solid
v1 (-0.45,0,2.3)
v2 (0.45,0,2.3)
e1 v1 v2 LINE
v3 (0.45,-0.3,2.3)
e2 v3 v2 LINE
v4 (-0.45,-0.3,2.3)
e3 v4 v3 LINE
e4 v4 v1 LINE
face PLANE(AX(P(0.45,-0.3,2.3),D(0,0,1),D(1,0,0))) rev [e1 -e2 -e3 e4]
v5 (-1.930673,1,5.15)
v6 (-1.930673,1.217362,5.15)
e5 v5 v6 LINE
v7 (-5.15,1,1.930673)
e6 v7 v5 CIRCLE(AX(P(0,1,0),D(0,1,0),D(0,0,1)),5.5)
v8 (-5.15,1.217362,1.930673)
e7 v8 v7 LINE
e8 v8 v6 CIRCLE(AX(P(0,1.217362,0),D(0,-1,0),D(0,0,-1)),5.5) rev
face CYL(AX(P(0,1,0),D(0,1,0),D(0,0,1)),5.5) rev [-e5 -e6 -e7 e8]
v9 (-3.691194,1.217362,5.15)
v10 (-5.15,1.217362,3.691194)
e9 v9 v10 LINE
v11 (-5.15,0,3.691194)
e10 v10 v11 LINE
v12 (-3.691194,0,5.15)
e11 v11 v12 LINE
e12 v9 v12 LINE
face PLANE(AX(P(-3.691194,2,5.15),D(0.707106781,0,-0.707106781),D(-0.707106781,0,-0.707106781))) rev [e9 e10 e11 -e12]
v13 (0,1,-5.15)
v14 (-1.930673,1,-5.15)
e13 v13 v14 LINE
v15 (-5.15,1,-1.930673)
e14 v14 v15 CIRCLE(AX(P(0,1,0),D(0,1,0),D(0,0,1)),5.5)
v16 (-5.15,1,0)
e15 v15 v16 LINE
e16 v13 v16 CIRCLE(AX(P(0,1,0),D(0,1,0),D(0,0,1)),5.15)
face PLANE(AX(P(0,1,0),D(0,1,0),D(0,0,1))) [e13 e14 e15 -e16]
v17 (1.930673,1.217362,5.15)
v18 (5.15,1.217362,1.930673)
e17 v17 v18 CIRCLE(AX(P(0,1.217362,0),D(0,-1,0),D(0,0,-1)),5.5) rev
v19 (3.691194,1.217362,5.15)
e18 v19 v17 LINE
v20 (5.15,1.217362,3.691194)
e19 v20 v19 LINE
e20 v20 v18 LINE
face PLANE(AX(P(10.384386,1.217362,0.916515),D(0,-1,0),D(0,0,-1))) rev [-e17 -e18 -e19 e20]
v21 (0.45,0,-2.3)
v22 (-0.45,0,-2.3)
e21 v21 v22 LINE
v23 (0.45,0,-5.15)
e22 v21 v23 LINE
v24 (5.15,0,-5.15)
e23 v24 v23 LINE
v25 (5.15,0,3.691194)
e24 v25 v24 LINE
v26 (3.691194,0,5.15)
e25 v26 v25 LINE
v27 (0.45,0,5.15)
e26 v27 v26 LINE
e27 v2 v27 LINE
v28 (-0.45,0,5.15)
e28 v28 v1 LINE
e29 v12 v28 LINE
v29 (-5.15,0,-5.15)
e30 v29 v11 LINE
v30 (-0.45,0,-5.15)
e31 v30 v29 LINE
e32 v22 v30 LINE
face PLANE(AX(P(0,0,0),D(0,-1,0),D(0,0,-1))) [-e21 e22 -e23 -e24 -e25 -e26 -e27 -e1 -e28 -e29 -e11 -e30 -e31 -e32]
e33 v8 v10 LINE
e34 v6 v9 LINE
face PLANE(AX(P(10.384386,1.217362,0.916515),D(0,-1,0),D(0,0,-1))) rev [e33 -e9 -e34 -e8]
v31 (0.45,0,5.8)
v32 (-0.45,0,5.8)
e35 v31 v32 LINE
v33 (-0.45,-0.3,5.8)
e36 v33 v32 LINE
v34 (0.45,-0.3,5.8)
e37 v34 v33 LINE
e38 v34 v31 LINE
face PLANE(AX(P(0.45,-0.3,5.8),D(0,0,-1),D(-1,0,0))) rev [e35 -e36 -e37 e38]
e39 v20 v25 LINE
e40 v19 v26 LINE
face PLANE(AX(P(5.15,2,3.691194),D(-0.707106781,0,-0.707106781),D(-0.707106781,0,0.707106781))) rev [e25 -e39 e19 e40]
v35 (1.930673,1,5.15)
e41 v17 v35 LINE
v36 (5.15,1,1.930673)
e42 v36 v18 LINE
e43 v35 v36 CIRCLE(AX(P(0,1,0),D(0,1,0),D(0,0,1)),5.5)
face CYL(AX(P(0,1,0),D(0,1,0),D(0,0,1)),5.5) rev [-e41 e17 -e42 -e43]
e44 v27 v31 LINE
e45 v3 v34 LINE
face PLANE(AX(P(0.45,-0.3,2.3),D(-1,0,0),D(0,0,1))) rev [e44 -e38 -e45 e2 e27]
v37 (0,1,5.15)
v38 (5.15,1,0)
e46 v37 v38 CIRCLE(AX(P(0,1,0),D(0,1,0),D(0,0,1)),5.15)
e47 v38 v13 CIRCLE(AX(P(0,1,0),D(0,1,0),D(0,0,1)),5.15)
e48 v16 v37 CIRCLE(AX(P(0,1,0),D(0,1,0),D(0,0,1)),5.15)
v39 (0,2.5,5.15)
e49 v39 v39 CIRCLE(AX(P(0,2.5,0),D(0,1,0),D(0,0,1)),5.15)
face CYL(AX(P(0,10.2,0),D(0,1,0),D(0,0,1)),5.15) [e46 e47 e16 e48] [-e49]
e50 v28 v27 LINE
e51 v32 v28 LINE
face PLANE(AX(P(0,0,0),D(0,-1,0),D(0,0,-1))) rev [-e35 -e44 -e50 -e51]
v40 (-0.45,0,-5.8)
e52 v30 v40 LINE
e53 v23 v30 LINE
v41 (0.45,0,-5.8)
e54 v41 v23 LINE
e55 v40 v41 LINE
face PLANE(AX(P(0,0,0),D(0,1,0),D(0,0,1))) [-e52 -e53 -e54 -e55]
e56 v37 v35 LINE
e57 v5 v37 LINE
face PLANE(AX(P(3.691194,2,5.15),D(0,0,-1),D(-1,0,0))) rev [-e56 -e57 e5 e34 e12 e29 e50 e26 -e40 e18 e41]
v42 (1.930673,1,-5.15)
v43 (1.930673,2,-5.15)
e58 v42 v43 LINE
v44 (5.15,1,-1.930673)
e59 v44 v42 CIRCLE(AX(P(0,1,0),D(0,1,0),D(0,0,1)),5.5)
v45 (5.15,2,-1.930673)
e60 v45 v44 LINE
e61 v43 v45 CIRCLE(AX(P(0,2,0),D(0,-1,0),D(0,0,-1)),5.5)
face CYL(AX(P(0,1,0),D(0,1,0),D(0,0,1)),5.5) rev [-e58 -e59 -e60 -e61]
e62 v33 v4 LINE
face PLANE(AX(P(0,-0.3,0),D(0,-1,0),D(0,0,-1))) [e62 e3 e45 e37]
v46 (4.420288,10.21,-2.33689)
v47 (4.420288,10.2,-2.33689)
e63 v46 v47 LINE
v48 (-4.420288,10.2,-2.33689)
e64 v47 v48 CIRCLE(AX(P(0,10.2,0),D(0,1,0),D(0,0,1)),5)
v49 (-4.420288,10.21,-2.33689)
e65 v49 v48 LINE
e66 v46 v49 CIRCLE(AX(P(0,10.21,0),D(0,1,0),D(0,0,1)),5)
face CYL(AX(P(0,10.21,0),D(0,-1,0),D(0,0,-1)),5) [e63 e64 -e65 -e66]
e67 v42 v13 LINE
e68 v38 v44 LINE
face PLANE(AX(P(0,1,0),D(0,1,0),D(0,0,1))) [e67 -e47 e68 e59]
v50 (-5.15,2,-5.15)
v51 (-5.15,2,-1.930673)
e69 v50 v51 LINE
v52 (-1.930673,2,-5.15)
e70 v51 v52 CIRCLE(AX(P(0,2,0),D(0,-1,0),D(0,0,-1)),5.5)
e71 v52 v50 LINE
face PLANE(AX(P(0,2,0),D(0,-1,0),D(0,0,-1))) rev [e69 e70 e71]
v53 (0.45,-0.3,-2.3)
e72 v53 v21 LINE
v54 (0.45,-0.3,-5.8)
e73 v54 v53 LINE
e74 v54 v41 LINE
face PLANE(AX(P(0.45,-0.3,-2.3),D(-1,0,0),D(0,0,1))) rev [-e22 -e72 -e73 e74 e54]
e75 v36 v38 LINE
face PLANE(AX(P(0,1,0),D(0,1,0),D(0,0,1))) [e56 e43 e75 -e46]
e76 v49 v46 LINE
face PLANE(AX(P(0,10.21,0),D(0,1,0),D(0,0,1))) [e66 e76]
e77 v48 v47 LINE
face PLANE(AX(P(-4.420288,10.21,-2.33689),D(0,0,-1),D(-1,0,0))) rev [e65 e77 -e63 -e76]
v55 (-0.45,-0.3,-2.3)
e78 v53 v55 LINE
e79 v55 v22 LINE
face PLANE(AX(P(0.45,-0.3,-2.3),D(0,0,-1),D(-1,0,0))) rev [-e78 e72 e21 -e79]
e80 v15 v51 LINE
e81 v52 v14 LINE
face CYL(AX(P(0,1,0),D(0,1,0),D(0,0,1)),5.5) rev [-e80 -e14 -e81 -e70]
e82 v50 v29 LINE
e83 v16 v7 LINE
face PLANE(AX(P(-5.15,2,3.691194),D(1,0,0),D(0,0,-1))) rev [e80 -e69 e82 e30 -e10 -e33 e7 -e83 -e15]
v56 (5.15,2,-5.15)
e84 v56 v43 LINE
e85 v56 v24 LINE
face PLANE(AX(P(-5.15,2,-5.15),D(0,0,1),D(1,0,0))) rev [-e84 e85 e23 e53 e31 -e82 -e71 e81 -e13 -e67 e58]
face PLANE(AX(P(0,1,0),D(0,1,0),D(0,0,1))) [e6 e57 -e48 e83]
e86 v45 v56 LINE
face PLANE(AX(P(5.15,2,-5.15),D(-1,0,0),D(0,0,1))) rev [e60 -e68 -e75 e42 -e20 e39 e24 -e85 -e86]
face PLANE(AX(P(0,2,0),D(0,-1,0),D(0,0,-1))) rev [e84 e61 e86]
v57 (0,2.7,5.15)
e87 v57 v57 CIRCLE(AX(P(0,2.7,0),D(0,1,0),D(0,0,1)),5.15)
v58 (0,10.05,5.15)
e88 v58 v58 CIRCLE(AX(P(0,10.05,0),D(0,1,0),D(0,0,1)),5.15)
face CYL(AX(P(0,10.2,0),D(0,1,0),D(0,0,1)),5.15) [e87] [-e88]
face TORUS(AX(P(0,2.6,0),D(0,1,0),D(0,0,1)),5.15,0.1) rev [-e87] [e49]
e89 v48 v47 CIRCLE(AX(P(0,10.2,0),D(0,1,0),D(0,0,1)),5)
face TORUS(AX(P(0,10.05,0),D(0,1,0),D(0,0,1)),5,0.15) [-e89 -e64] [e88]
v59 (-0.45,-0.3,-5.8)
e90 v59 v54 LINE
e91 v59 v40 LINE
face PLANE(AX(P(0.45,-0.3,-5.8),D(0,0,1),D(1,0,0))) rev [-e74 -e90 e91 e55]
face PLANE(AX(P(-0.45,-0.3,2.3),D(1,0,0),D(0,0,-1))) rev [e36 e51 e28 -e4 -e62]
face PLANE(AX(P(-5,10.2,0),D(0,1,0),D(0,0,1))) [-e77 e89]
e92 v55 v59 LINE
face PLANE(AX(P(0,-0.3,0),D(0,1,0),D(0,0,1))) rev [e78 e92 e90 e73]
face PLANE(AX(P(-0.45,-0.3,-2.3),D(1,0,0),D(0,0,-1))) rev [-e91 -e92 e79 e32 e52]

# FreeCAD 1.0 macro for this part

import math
import FreeCAD as App
import Part
import Sketcher

doc = App.newDocument("Part")
body = doc.addObject("PartDesign::Body", "Body")

sketch1 = doc.addObject("Sketcher::SketchObject", "Sketch")
body.addObject(sketch1)
sketch1.AttachmentSupport = (doc.XZ_Plane, [""])
sketch1.MapMode = "FlatFace"
sketch1.addGeometry([
    Part.LineSegment(App.Vector(5.2, -5.2, 0), App.Vector(-5.2, -5.2, 0)),
    Part.LineSegment(App.Vector(-5.2, -5.2, 0), App.Vector(-5.2, 3.7, 0)),
    Part.LineSegment(App.Vector(-5.2, 3.7, 0), App.Vector(-3.7, 5.2, 0)),
    Part.LineSegment(App.Vector(-3.7, 5.2, 0), App.Vector(3.7, 5.2, 0)),
    Part.LineSegment(App.Vector(3.7, 5.2, 0), App.Vector(5.2, 3.7, 0)),
    Part.LineSegment(App.Vector(5.2, 3.7, 0), App.Vector(5.2, -5.2, 0)),
], False)
sketch1.addConstraint([
    Sketcher.Constraint("Coincident", 0, 2, 1, 1),
    Sketcher.Constraint("Coincident", 1, 2, 2, 1),
    Sketcher.Constraint("Coincident", 2, 2, 3, 1),
    Sketcher.Constraint("Coincident", 3, 2, 4, 1),
    Sketcher.Constraint("Coincident", 4, 2, 5, 1),
    Sketcher.Constraint("Coincident", 5, 2, 0, 1),
    Sketcher.Constraint("Horizontal", 0),
    Sketcher.Constraint("Vertical", 1),
    Sketcher.Constraint("Horizontal", 3),
    Sketcher.Constraint("Vertical", 5),
    Sketcher.Constraint("Symmetric", 1, 2, 4, 2, -2),
    Sketcher.Constraint("Perpendicular", 2, 4),
    Sketcher.Constraint("Equal", 2, 4),
    Sketcher.Constraint("DistanceX", 0, 2, 0, 1, 10.3),
    Sketcher.Constraint("DistanceY", 0, 2, 2, 2, 10.3),
    Sketcher.Constraint("DistanceY", 0, 2, -1, 1, 5.15),
    Sketcher.Constraint("DistanceX", 3, 1, 3, 2, 7.382387),
])
pad1 = doc.addObject("PartDesign::Pad", "Pad")
body.addObject(pad1)
pad1.Profile = sketch1
pad1.Length = 2
pad1.Reversed = True

sketch2 = doc.addObject("Sketcher::SketchObject", "Sketch001")
body.addObject(sketch2)
sketch2.AttachmentSupport = (doc.XZ_Plane, [""])
sketch2.MapMode = "FlatFace"
sketch2.AttachmentOffset = App.Placement(App.Vector(0, 0, -2), App.Rotation())
sketch2.addGeometry(Part.Circle(App.Vector(0, 0, 0), App.Vector(0, 0, 1), 6), False)
sketch2.addConstraint([
    Sketcher.Constraint("Coincident", 0, 3, -1, 1),
    Sketcher.Constraint("Diameter", 0, 11.0),
])
pocket1 = doc.addObject("PartDesign::Pocket", "Pocket")
body.addObject(pocket1)
pocket1.Profile = sketch2
pocket1.Length = 1
pocket1.Reversed = True

sketch3 = doc.addObject("Sketcher::SketchObject", "Sketch002")
body.addObject(sketch3)
sketch3.AttachmentSupport = (doc.YZ_Plane, [""])
sketch3.MapMode = "FlatFace"
sketch3.AttachmentOffset = App.Placement(App.Vector(0, 0, 5.15), App.Rotation())
sketch3.addGeometry([
    Part.LineSegment(App.Vector(2.8, 0.9, 0), App.Vector(1.2, 0.9, 0)),
    Part.LineSegment(App.Vector(1.2, 0.9, 0), App.Vector(1.2, 5.9, 0)),
    Part.LineSegment(App.Vector(1.2, 5.9, 0), App.Vector(2.8, 5.9, 0)),
    Part.LineSegment(App.Vector(2.8, 5.9, 0), App.Vector(2.8, 0.9, 0)),
], False)
sketch3.addConstraint([
    Sketcher.Constraint("Coincident", 0, 2, 1, 1),
    Sketcher.Constraint("Coincident", 1, 2, 2, 1),
    Sketcher.Constraint("Coincident", 2, 2, 3, 1),
    Sketcher.Constraint("Coincident", 3, 2, 0, 1),
    Sketcher.Constraint("Horizontal", 0),
    Sketcher.Constraint("Vertical", 1),
    Sketcher.Constraint("Horizontal", 2),
    Sketcher.Constraint("Vertical", 3),
    Sketcher.Constraint("DistanceY", 1, 1, 1, 2, 4.983499),
    Sketcher.Constraint("DistanceX", 0, 2, 0, 1, 1.601105),
    Sketcher.Constraint("DistanceX", -1, 1, 0, 2, 1.217362),
    Sketcher.Constraint("DistanceY", -1, 1, 0, 2, 0.916515),
])
pocket2 = doc.addObject("PartDesign::Pocket", "Pocket001")
body.addObject(pocket2)
pocket2.Profile = sketch3
pocket2.Length = 10.3

sketch4 = doc.addObject("Sketcher::SketchObject", "Sketch003")
body.addObject(sketch4)
sketch4.AttachmentSupport = (doc.XY_Plane, [""])
sketch4.MapMode = "FlatFace"
sketch4.addGeometry([
    Part.LineSegment(App.Vector(-5.15, 1, 0), App.Vector(0, 1, 0)),
    Part.LineSegment(App.Vector(0, 1, 0), App.Vector(0, 10.2, 0)),
    Part.LineSegment(App.Vector(0, 10.2, 0), App.Vector(-5, 10.2, 0)),
    Part.ArcOfCircle(Part.Circle(App.Vector(-5, 10.05, 0), App.Vector(0, 0, 1), 0.15), math.radians(90), math.radians(180)),
    Part.LineSegment(App.Vector(-5.15, 10.05, 0), App.Vector(-5.15, 2.7, 0)),
    Part.ArcOfCircle(Part.Circle(App.Vector(-5.15, 2.6, 0), App.Vector(0, 0, 1), 0.1), math.radians(-90), math.radians(90)),
    Part.LineSegment(App.Vector(-5.15, 2.5, 0), App.Vector(-5.15, 1, 0)),
], False)
sketch4.addConstraint([
    Sketcher.Constraint("Coincident", 0, 2, 1, 1),
    Sketcher.Constraint("Coincident", 1, 2, 2, 1),
    Sketcher.Constraint("Tangent", 2, 2, 3, 1),
    Sketcher.Constraint("Tangent", 3, 2, 4, 1),
    Sketcher.Constraint("Coincident", 4, 2, 5, 2),
    Sketcher.Constraint("Coincident", 5, 1, 6, 1),
    Sketcher.Constraint("Coincident", 6, 2, 0, 1),
    Sketcher.Constraint("Horizontal", 0),
    Sketcher.Constraint("Vertical", 1),
    Sketcher.Constraint("Horizontal", 2),
    Sketcher.Constraint("Vertical", 4),
    Sketcher.Constraint("Vertical", 6),
    Sketcher.Constraint("PointOnObject", 0, 2, -2),
    Sketcher.Constraint("Vertical", 5, 3, 3, 2),
    Sketcher.Constraint("Vertical", 4, 2, 5, 1),
    Sketcher.Constraint("Radius", 5, 0.1),
    Sketcher.Constraint("DistanceX", 2, 2, 2, 1, 5.0),
    Sketcher.Constraint("Radius", 3, 0.15),
    Sketcher.Constraint("DistanceY", 1, 1, 1, 2, 9.2),
    Sketcher.Constraint("DistanceY", 6, 2, 6, 1, 1.5),
    Sketcher.Constraint("DistanceY", -1, 1, 0, 2, 1.0),
])
revolution = doc.addObject("PartDesign::Revolution", "Revolution")
body.addObject(revolution)
revolution.Profile = sketch4
revolution.ReferenceAxis = (sketch4, ["V_Axis"])
revolution.Angle = 360

sketch5 = doc.addObject("Sketcher::SketchObject", "Sketch004")
body.addObject(sketch5)
sketch5.AttachmentSupport = (doc.XZ_Plane, [""])
sketch5.MapMode = "FlatFace"
sketch5.AttachmentOffset = App.Placement(App.Vector(0, 0, -10.2), App.Rotation())
sketch5.addGeometry([
    Part.LineSegment(App.Vector(-4, -2, 0), App.Vector(4, -2, 0)),
    Part.ArcOfCircle(Part.Circle(App.Vector(0, 0, 0), App.Vector(0, 0, 1), 5), math.radians(-152), math.radians(-28)),
], False)
sketch5.addConstraint([
    Sketcher.Constraint("Coincident", 0, 1, 1, 1),
    Sketcher.Constraint("Coincident", 1, 2, 0, 2),
    Sketcher.Constraint("Horizontal", 0),
    Sketcher.Constraint("Coincident", 1, 3, -1, 1),
    Sketcher.Constraint("Radius", 1, 5.0),
    Sketcher.Constraint("DistanceX", 0, 1, 0, 2, 8.840575),
])
pad2 = doc.addObject("PartDesign::Pad", "Pad001")
body.addObject(pad2)
pad2.Profile = sketch5
pad2.Length = 0.01
pad2.Reversed = True

sketch6 = doc.addObject("Sketcher::SketchObject", "Sketch005")
body.addObject(sketch6)
sketch6.AttachmentSupport = (doc.XZ_Plane, [""])
sketch6.MapMode = "FlatFace"
sketch6.addGeometry([
    Part.LineSegment(App.Vector(-0.5, -2.3, 0), App.Vector(-0.5, -5.8, 0)),
    Part.LineSegment(App.Vector(-0.5, -5.8, 0), App.Vector(0.5, -5.8, 0)),
    Part.LineSegment(App.Vector(0.5, -5.8, 0), App.Vector(0.5, -2.3, 0)),
    Part.LineSegment(App.Vector(0.5, -2.3, 0), App.Vector(-0.5, -2.3, 0)),
    Part.LineSegment(App.Vector(-0.5, 5.8, 0), App.Vector(-0.5, 2.3, 0)),
    Part.LineSegment(App.Vector(-0.5, 2.3, 0), App.Vector(0.5, 2.3, 0)),
    Part.LineSegment(App.Vector(0.5, 2.3, 0), App.Vector(0.5, 5.8, 0)),
    Part.LineSegment(App.Vector(0.5, 5.8, 0), App.Vector(-0.5, 5.8, 0)),
], False)
sketch6.addConstraint([
    Sketcher.Constraint("Coincident", 0, 2, 1, 1),
    Sketcher.Constraint("Coincident", 1, 2, 2, 1),
    Sketcher.Constraint("Coincident", 2, 2, 3, 1),
    Sketcher.Constraint("Coincident", 3, 2, 0, 1),
    Sketcher.Constraint("Coincident", 4, 2, 5, 1),
    Sketcher.Constraint("Coincident", 5, 2, 6, 1),
    Sketcher.Constraint("Coincident", 6, 2, 7, 1),
    Sketcher.Constraint("Coincident", 7, 2, 4, 1),
    Sketcher.Constraint("Vertical", 0),
    Sketcher.Constraint("Horizontal", 1),
    Sketcher.Constraint("Vertical", 2),
    Sketcher.Constraint("Horizontal", 3),
    Sketcher.Constraint("Vertical", 4),
    Sketcher.Constraint("Horizontal", 5),
    Sketcher.Constraint("Vertical", 6),
    Sketcher.Constraint("Horizontal", 7),
    Sketcher.Constraint("Symmetric", 2, 2, 4, 2, -1, 1),
    Sketcher.Constraint("Symmetric", 0, 2, 6, 2, -1, 1),
    Sketcher.Constraint("Vertical", 3, 2, 4, 2),
    Sketcher.Constraint("DistanceX", 1, 1, 1, 2, 0.9),
    Sketcher.Constraint("DistanceY", 0, 2, 0, 1, 3.5),
    Sketcher.Constraint("DistanceY", 0, 2, -1, 1, 5.8),
])
pad3 = doc.addObject("PartDesign::Pad", "Pad002")
body.addObject(pad3)
pad3.Profile = sketch6
pad3.Length = 0.3

doc.recompute()
